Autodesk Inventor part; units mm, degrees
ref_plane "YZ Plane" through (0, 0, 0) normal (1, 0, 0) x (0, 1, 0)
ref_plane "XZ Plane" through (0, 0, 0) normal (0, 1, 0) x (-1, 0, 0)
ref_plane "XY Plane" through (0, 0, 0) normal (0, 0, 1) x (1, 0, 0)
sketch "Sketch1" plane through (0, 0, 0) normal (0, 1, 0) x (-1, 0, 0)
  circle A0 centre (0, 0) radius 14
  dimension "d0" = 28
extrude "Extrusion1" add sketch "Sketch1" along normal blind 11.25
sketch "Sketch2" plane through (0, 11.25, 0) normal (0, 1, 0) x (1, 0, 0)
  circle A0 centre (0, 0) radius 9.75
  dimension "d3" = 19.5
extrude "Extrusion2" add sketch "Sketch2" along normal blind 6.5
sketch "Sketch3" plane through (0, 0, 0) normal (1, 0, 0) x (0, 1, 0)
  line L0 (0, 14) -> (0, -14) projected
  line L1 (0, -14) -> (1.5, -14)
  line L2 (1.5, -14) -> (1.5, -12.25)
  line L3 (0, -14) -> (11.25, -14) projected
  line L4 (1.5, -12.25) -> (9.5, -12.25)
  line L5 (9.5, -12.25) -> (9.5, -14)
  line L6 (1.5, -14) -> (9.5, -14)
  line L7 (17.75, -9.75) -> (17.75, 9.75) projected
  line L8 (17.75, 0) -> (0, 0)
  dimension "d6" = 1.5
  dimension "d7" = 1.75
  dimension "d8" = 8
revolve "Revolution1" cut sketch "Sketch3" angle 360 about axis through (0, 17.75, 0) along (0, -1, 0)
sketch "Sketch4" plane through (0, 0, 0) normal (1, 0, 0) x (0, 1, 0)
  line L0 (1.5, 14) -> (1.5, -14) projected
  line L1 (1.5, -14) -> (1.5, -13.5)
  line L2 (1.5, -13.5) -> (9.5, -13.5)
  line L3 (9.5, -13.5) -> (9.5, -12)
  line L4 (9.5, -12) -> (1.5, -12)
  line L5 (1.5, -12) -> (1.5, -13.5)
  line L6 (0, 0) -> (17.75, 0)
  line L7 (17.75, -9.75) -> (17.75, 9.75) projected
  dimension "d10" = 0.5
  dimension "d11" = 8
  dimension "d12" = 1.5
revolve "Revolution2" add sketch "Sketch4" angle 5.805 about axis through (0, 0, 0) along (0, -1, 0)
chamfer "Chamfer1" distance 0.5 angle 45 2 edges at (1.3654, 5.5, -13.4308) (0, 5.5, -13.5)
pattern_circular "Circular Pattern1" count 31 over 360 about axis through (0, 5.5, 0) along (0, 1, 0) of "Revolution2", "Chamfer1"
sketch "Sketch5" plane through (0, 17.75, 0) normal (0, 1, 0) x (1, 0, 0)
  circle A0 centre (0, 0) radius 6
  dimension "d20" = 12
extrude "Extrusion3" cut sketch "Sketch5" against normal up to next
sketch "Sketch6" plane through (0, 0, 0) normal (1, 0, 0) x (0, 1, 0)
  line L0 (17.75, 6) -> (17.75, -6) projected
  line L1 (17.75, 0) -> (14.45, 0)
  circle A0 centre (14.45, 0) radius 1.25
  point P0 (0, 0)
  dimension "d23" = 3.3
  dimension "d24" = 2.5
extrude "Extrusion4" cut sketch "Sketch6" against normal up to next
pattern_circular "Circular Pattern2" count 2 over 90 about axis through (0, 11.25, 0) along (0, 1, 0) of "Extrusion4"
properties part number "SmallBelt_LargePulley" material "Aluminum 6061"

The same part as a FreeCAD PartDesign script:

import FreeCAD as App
import Part
import Sketcher

V = App.Vector


def edges_at(feature, points):
    """Names of the edges that pass closest to the given points."""
    edges = feature.Shape.Edges
    near = lambda p: min(range(len(edges)), key=lambda i: edges[i].distToShape(Part.Vertex(*p))[0])
    return sorted({f"Edge{near(p) + 1}" for p in points})


def add_polygon(sketch, points):
    """Adds a closed chain of lines whose ends are joined by coincident constraints."""
    first, n = sketch.GeometryCount, len(points)
    for a, b in zip(points, points[1:] + points[:1]):
        sketch.addGeometry(Part.LineSegment(App.Vector(*a, 0), App.Vector(*b, 0)), False)
    for i in range(n):
        sketch.addConstraint(Sketcher.Constraint("Coincident", first + i, 2, first + (i + 1) % n, 1))

doc = App.newDocument("Part")
body = doc.addObject("PartDesign::Body", "Body")

# Sketch on XZ plane
sketch1 = body.newObject("Sketcher::SketchObject", "Sketch")
sketch1.AttachmentSupport = (doc.getObject("XZ_Plane"), [""])
sketch1.MapMode = "FlatFace"
sketch1.addGeometry(Part.Circle(V(0, 0, 0), V(0, 0, 1), 14), False)
sketch1.addConstraint(Sketcher.Constraint("Coincident", 0, 3, -1, 1))
sketch1.addConstraint(Sketcher.Constraint("Diameter", 0, 28.0))
pad1 = body.newObject("PartDesign::Pad", "Pad")
pad1.Profile = sketch1
pad1.Length = 11.25
pad1.Reversed = True

# Sketch on XZ plane
sketch2 = body.newObject("Sketcher::SketchObject", "Sketch001")
sketch2.AttachmentSupport = (doc.getObject("XZ_Plane"), [""])
sketch2.MapMode = "FlatFace"
sketch2.AttachmentOffset = App.Placement(V(0, 0, -11.25), App.Rotation())
sketch2.addGeometry(Part.Circle(V(0, 0, 0), V(0, 0, 1), 10), False)
sketch2.addConstraint(Sketcher.Constraint("Coincident", 0, 3, -1, 1))
sketch2.addConstraint(Sketcher.Constraint("Diameter", 0, 19.5))
pad2 = body.newObject("PartDesign::Pad", "Pad001")
pad2.Profile = sketch2
pad2.Length = 6.5
pad2.Reversed = True

# Sketch on YZ plane
sketch3 = body.newObject("Sketcher::SketchObject", "Sketch002")
sketch3.AttachmentSupport = (doc.getObject("YZ_Plane"), [""])
sketch3.MapMode = "FlatFace"
add_polygon(sketch3, [(1.5, -12.2), (1.5, -14), (9.5, -14), (9.5, -12.2)])  # lines 0-3
sketch3.addConstraint(Sketcher.Constraint("Vertical", 0))
sketch3.addConstraint(Sketcher.Constraint("Horizontal", 1))
sketch3.addConstraint(Sketcher.Constraint("Vertical", 2))
sketch3.addConstraint(Sketcher.Constraint("Horizontal", 3))
sketch3.addConstraint(Sketcher.Constraint("DistanceX", 1, 1, 1, 2, 8.0))
sketch3.addConstraint(Sketcher.Constraint("DistanceY", 0, 2, 0, 1, 1.75))
sketch3.addConstraint(Sketcher.Constraint("DistanceX", -1, 1, 0, 2, 1.5))
sketch3.addConstraint(Sketcher.Constraint("DistanceY", 0, 2, -1, 1, 14.0))
groove = body.newObject("PartDesign::Groove", "Groove")
groove.Profile = sketch3
groove.ReferenceAxis = (sketch3, ["H_Axis"])
groove.Angle = 360

# Sketch on YZ plane
sketch4 = body.newObject("Sketcher::SketchObject", "Sketch003")
sketch4.AttachmentSupport = (doc.getObject("YZ_Plane"), [""])
sketch4.MapMode = "FlatFace"
add_polygon(sketch4, [(9.5, -12), (1.5, -12), (1.5, -13.5), (9.5, -13.5)])  # lines 0-3
sketch4.addConstraint(Sketcher.Constraint("Horizontal", 0))
sketch4.addConstraint(Sketcher.Constraint("Vertical", 1))
sketch4.addConstraint(Sketcher.Constraint("Horizontal", 2))
sketch4.addConstraint(Sketcher.Constraint("Vertical", 3))
sketch4.addConstraint(Sketcher.Constraint("DistanceX", 0, 2, 0, 1, 8.0))
sketch4.addConstraint(Sketcher.Constraint("DistanceY", 1, 2, 1, 1, 1.5))
sketch4.addConstraint(Sketcher.Constraint("DistanceX", -1, 1, 0, 2, 1.5))
sketch4.addConstraint(Sketcher.Constraint("DistanceY", 0, 2, -1, 1, 12.0))
revolution = body.newObject("PartDesign::Revolution", "Revolution")
revolution.Profile = sketch4
revolution.ReferenceAxis = (sketch4, ["H_Axis"])
revolution.Angle = 5.805
revolution.Reversed = True
doc.recompute()

chamfer = body.newObject("PartDesign::Chamfer", "Chamfer")
chamfer.Base = (revolution, edges_at(revolution, [(1.365, 5.5, -13.431), (0, 5.5, -13.5)]))
chamfer.Size = 0.5
doc.recompute()

polarpattern = body.newObject("PartDesign::PolarPattern", "PolarPattern")
polarpattern.Originals = [revolution, chamfer]
polarpattern.Axis = (doc.getObject("Y_Axis"), [""])
polarpattern.Angle = 360
polarpattern.Occurrences = 31
body.Tip = polarpattern

# Sketch on XZ plane
sketch5 = body.newObject("Sketcher::SketchObject", "Sketch004")
sketch5.AttachmentSupport = (doc.getObject("XZ_Plane"), [""])
sketch5.MapMode = "FlatFace"
sketch5.AttachmentOffset = App.Placement(V(0, 0, -17.75), App.Rotation())
sketch5.addGeometry(Part.Circle(V(0, 0, 0), V(0, 0, 1), 6), False)
sketch5.addConstraint(Sketcher.Constraint("Coincident", 0, 3, -1, 1))
sketch5.addConstraint(Sketcher.Constraint("Diameter", 0, 12.0))
pocket1 = body.newObject("PartDesign::Pocket", "Pocket")
pocket1.Profile = sketch5
pocket1.Type = "UpToFirst"
pocket1.Reversed = True

# Sketch on YZ plane
sketch6 = body.newObject("Sketcher::SketchObject", "Sketch005")
sketch6.AttachmentSupport = (doc.getObject("YZ_Plane"), [""])
sketch6.MapMode = "FlatFace"
sketch6.addGeometry(Part.Circle(V(14.4, 0, 0), V(0, 0, 1), 1.2), False)
sketch6.addConstraint(Sketcher.Constraint("PointOnObject", 0, 3, -1))
sketch6.addConstraint(Sketcher.Constraint("Diameter", 0, 2.5))
sketch6.addConstraint(Sketcher.Constraint("DistanceX", -1, 1, 0, 3, 14.45))
pocket2 = body.newObject("PartDesign::Pocket", "Pocket001")
pocket2.Profile = sketch6
pocket2.Length = 9.75
doc.recompute()

polarpattern2 = body.newObject("PartDesign::PolarPattern", "PolarPattern001")
polarpattern2.Originals = [pocket2]
polarpattern2.Axis = (doc.getObject("Y_Axis"), [""])
polarpattern2.Angle = 90
polarpattern2.Occurrences = 2
body.Tip = polarpattern2

doc.recompute()
